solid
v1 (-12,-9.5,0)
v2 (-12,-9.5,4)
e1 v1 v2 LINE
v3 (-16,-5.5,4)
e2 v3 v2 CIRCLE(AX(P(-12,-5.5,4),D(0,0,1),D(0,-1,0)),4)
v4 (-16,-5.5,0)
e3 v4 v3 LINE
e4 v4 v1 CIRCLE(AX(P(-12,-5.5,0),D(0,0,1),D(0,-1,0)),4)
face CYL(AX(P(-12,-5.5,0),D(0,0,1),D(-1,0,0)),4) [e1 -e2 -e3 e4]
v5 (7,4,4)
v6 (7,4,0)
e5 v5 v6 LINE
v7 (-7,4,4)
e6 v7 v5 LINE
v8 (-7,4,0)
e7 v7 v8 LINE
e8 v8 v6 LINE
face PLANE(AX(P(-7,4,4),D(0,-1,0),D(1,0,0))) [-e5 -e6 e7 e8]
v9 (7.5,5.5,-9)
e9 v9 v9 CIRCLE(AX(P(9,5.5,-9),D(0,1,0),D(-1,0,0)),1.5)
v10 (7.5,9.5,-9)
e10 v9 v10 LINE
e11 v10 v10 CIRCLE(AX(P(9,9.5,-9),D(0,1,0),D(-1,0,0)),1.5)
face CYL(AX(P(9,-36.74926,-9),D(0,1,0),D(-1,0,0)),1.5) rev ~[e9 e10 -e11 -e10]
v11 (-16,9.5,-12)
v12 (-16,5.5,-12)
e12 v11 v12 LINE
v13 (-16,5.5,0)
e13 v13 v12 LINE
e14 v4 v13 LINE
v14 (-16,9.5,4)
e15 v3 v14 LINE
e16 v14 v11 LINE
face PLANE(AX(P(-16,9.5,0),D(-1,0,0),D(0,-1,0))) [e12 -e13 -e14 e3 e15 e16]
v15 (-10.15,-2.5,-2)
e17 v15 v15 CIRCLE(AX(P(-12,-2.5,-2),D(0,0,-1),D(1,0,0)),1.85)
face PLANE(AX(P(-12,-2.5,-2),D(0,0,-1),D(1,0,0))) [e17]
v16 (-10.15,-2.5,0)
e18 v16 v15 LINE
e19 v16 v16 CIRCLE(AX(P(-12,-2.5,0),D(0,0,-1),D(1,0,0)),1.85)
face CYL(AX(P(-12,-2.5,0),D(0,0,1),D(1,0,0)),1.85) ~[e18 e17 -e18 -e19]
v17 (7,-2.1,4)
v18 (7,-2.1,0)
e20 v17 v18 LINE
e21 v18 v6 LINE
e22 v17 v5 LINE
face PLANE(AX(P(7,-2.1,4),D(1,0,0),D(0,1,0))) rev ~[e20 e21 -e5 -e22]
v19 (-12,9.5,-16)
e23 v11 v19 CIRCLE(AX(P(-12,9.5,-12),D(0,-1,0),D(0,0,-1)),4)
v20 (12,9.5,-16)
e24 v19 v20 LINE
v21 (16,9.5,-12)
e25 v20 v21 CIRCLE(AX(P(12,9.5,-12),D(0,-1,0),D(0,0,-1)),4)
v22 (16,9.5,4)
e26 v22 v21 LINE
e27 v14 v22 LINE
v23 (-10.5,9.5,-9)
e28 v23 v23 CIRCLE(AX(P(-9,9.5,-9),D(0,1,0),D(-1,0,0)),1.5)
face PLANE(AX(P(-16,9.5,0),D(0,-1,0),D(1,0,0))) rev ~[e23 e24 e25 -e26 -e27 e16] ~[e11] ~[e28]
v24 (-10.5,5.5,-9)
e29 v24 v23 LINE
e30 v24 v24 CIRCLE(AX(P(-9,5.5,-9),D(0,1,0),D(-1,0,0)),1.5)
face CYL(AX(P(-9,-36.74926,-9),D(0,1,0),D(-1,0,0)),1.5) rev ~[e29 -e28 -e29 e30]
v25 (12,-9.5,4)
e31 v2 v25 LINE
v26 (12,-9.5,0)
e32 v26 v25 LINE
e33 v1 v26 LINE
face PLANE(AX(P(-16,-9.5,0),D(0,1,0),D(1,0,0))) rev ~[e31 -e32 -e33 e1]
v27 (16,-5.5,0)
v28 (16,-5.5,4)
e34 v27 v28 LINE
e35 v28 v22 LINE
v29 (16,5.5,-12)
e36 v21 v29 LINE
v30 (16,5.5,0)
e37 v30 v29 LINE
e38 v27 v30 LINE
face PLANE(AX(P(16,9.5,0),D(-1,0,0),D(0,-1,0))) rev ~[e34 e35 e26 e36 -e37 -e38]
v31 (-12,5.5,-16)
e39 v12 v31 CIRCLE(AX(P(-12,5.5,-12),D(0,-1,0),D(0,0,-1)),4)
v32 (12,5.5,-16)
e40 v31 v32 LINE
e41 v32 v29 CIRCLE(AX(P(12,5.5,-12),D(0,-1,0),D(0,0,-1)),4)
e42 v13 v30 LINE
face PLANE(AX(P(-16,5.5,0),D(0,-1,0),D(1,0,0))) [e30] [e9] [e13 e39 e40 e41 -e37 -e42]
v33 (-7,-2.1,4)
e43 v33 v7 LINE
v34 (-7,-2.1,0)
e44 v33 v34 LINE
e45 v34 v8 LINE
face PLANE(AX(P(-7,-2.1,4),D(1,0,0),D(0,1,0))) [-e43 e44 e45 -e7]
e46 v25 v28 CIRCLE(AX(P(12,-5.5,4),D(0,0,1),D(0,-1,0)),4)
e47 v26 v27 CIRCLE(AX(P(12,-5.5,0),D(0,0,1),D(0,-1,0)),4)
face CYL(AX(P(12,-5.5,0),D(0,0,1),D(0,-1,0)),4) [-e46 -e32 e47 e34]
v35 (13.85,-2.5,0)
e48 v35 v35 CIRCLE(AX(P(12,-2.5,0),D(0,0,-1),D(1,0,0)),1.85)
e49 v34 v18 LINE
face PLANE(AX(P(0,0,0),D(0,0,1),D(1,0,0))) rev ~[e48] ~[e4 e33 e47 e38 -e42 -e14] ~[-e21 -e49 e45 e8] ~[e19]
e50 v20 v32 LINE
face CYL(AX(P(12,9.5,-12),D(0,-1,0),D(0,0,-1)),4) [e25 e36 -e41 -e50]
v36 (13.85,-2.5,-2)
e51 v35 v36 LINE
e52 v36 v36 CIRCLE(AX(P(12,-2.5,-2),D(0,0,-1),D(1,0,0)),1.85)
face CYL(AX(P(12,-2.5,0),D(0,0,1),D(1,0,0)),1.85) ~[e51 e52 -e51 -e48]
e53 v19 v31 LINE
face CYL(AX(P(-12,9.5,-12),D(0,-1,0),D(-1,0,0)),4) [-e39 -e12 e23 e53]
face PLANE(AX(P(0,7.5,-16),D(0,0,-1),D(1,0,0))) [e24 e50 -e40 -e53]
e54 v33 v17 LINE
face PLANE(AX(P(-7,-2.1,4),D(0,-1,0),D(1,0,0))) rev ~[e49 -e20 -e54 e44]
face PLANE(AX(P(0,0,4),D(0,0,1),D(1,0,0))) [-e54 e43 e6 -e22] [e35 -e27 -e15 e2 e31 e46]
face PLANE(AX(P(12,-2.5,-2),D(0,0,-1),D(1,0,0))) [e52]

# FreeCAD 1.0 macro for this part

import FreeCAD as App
import Part
import Sketcher
from FreeCAD import Vector
Q = App.Units.Quantity


def edges_at(feature, points):
    """Names of the edges that pass closest to the given points."""
    edges = feature.Shape.Edges
    near = lambda p: min(range(len(edges)), key=lambda i: edges[i].distToShape(Part.Vertex(*p))[0])
    return sorted({f"Edge{near(p) + 1}" for p in points})


def add_polygon(sketch, points):
    """Adds a closed chain of lines whose ends are joined by coincident constraints."""
    first, n = sketch.GeometryCount, len(points)
    for a, b in zip(points, points[1:] + points[:1]):
        sketch.addGeometry(Part.LineSegment(App.Vector(*a, 0), App.Vector(*b, 0)), False)
    for i in range(n):
        sketch.addConstraint(Sketcher.Constraint("Coincident", first + i, 2, first + (i + 1) % n, 1))

doc = App.newDocument("Part")
params = doc.addObject("Spreadsheet::Sheet", "Params")
for row, (alias, value) in enumerate([
    ("sketch1_width", "32 mm"),
    ("sketch1_height", "19 mm"),
    ("pad1_length", "4 mm"),
    ("sketch2_width", "32 mm"),
    ("sketch2_height", "4 mm"),
    ("pad2_length", "16 mm"),
    ("sketch3_width", "14 mm"),
    ("sketch3_height", "6.1 mm"),
    ("pocket1_length", "25 mm"),
    ("sketch4_diameter", "3.7 mm"),
    ("pad3_length", "2 mm"),
    ("sketch5_diameter", "3 mm"),
    ("hole_diameter", "3 mm"),
    ("fillet_radius", "4 mm"),
], start=1):
    params.set(f"A{row}", alias)
    params.set(f"B{row}", "=" + value)
    params.setAlias(f"B{row}", alias)

body = doc.addObject("PartDesign::Body", "Body")

# Sketch on XY plane
sketch1 = doc.addObject("Sketcher::SketchObject", "Sketch")
body.addObject(sketch1)
sketch1.AttachmentSupport = (doc.XY_Plane, [""])
sketch1.MapMode = "FlatFace"
add_polygon(sketch1, [(-16, 9.5), (-16, -9.5), (16, -9.5), (16, 9.5)])  # lines 0-3
sketch1.addConstraint(Sketcher.Constraint("Vertical", 0))
sketch1.addConstraint(Sketcher.Constraint("Horizontal", 1))
sketch1.addConstraint(Sketcher.Constraint("Vertical", 2))
sketch1.addConstraint(Sketcher.Constraint("Horizontal", 3))
sketch1.addConstraint(Sketcher.Constraint("Symmetric", 0, 2, 2, 2, -1, 1))
sketch1.addConstraint(Sketcher.Constraint("DistanceX", 1, 1, 1, 2, Q("32 mm")))
sketch1.addConstraint(Sketcher.Constraint("DistanceY", 0, 2, 0, 1, Q("19 mm")))
sketch1.setExpression("Constraints[9]", "Params.sketch1_width")
sketch1.setExpression("Constraints[10]", "Params.sketch1_height")
pad1 = doc.addObject("PartDesign::Pad", "Pad")
body.addObject(pad1)
pad1.Profile = sketch1
pad1.setExpression("Length", "Params.pad1_length")

# Sketch on XY plane
sketch2 = doc.addObject("Sketcher::SketchObject", "Sketch001")
body.addObject(sketch2)
sketch2.AttachmentSupport = (doc.XY_Plane, [""])
sketch2.MapMode = "FlatFace"
add_polygon(sketch2, [(-16, 5.5), (-16, 9.5), (16, 9.5), (16, 5.5)])  # lines 0-3
sketch2.addConstraint(Sketcher.Constraint("Vertical", 0))
sketch2.addConstraint(Sketcher.Constraint("Horizontal", 1))
sketch2.addConstraint(Sketcher.Constraint("Vertical", 2))
sketch2.addConstraint(Sketcher.Constraint("Horizontal", 3))
sketch2.addConstraint(Sketcher.Constraint("DistanceX", 1, 1, 1, 2, Q("32 mm")))
sketch2.addConstraint(Sketcher.Constraint("DistanceY", 0, 1, 0, 2, Q("4 mm")))
sketch2.addConstraint(Sketcher.Constraint("DistanceX", 0, 2, -1, 1, Q("16 mm")))
sketch2.addConstraint(Sketcher.Constraint("DistanceY", -1, 1, 0, 2, Q("9.5 mm")))
sketch2.setExpression("Constraints[8]", "Params.sketch2_width")
sketch2.setExpression("Constraints[9]", "Params.sketch2_height")
pad2 = doc.addObject("PartDesign::Pad", "Pad001")
body.addObject(pad2)
pad2.Profile = sketch2
pad2.setExpression("Length", "Params.pad2_length")
pad2.Reversed = True

# Sketch on XY plane
sketch3 = doc.addObject("Sketcher::SketchObject", "Sketch002")
body.addObject(sketch3)
sketch3.AttachmentSupport = (doc.XY_Plane, [""])
sketch3.MapMode = "FlatFace"
sketch3.AttachmentOffset = App.Placement(Vector(0, 0, 4), App.Rotation())
add_polygon(sketch3, [(-7, 4), (-7, -2.1), (7, -2.1), (7, 4)])  # lines 0-3
sketch3.addConstraint(Sketcher.Constraint("Vertical", 0))
sketch3.addConstraint(Sketcher.Constraint("Horizontal", 1))
sketch3.addConstraint(Sketcher.Constraint("Vertical", 2))
sketch3.addConstraint(Sketcher.Constraint("Horizontal", 3))
sketch3.addConstraint(Sketcher.Constraint("DistanceX", 1, 1, 1, 2, Q("14 mm")))
sketch3.addConstraint(Sketcher.Constraint("DistanceY", 0, 2, 0, 1, Q("6.1 mm")))
sketch3.addConstraint(Sketcher.Constraint("DistanceX", 0, 2, -1, 1, Q("7 mm")))
sketch3.addConstraint(Sketcher.Constraint("DistanceY", -1, 1, 2, 2, Q("4 mm")))
sketch3.setExpression("Constraints[8]", "Params.sketch3_width")
sketch3.setExpression("Constraints[9]", "Params.sketch3_height")
pocket1 = doc.addObject("PartDesign::Pocket", "Pocket")
body.addObject(pocket1)
pocket1.Profile = sketch3
pocket1.setExpression("Length", "Params.pocket1_length")

# Sketch on XY plane
sketch4 = doc.addObject("Sketcher::SketchObject", "Sketch003")
body.addObject(sketch4)
sketch4.AttachmentSupport = (doc.XY_Plane, [""])
sketch4.MapMode = "FlatFace"
sketch4.addGeometry(Part.Circle(Vector(-12, -2.5, 0), Vector(0, 0, 1), 1.85), False)
sketch4.addGeometry(Part.Circle(Vector(12, -2.5, 0), Vector(0, 0, 1), 1.85), False)
sketch4.addConstraint(Sketcher.Constraint("Equal", 0, 1))
sketch4.addConstraint(Sketcher.Constraint("Symmetric", 0, 3, 1, 3, -2))
sketch4.addConstraint(Sketcher.Constraint("Diameter", 0, Q("3.7 mm")))
sketch4.addConstraint(Sketcher.Constraint("DistanceX", 0, 3, -1, 1, Q("12 mm")))
sketch4.addConstraint(Sketcher.Constraint("DistanceY", 0, 3, -1, 1, Q("2.5 mm")))
sketch4.setExpression("Constraints[2]", "Params.sketch4_diameter")
pad3 = doc.addObject("PartDesign::Pad", "Pad002")
body.addObject(pad3)
pad3.Profile = sketch4
pad3.setExpression("Length", "Params.pad3_length")
pad3.Reversed = True

# Sketch on XZ plane
sketch5 = doc.addObject("Sketcher::SketchObject", "Sketch004")
body.addObject(sketch5)
sketch5.AttachmentSupport = (doc.XZ_Plane, [""])
sketch5.MapMode = "FlatFace"
sketch5.AttachmentOffset = App.Placement(Vector(0, 0, -5.5), App.Rotation())
sketch5.addGeometry(Part.Circle(Vector(-9, -9, 0), Vector(0, 0, 1), 1.5), False)
sketch5.addGeometry(Part.Circle(Vector(9, -9, 0), Vector(0, 0, 1), 1.5), False)
sketch5.addConstraint(Sketcher.Constraint("Equal", 0, 1))
sketch5.addConstraint(Sketcher.Constraint("Symmetric", 0, 3, 1, 3, -2))
sketch5.addConstraint(Sketcher.Constraint("Diameter", 0, Q("3 mm")))
sketch5.addConstraint(Sketcher.Constraint("DistanceX", 0, 3, -1, 1, Q("9 mm")))
sketch5.addConstraint(Sketcher.Constraint("DistanceY", 0, 3, -1, 1, Q("9 mm")))
sketch5.setExpression("Constraints[2]", "Params.sketch5_diameter")
doc.recompute()
hole = doc.addObject("PartDesign::Hole", "Hole")
body.addObject(hole)
hole.Profile = sketch5
hole.ThreadType = "None"
hole.setExpression("Diameter", "Params.hole_diameter")
hole.DepthType = "ThroughAll"
doc.recompute()

fillet = doc.addObject("PartDesign::Fillet", "Fillet")
body.addObject(fillet)
fillet.Base = (hole, edges_at(hole, [
    (16, -9.5, 2),
    (-16, -9.5, 2),
    (-16, 7.5, -16),
    (16, 7.5, -16),
]))
fillet.setExpression("Radius", "Params.fillet_radius")

doc.recompute()
